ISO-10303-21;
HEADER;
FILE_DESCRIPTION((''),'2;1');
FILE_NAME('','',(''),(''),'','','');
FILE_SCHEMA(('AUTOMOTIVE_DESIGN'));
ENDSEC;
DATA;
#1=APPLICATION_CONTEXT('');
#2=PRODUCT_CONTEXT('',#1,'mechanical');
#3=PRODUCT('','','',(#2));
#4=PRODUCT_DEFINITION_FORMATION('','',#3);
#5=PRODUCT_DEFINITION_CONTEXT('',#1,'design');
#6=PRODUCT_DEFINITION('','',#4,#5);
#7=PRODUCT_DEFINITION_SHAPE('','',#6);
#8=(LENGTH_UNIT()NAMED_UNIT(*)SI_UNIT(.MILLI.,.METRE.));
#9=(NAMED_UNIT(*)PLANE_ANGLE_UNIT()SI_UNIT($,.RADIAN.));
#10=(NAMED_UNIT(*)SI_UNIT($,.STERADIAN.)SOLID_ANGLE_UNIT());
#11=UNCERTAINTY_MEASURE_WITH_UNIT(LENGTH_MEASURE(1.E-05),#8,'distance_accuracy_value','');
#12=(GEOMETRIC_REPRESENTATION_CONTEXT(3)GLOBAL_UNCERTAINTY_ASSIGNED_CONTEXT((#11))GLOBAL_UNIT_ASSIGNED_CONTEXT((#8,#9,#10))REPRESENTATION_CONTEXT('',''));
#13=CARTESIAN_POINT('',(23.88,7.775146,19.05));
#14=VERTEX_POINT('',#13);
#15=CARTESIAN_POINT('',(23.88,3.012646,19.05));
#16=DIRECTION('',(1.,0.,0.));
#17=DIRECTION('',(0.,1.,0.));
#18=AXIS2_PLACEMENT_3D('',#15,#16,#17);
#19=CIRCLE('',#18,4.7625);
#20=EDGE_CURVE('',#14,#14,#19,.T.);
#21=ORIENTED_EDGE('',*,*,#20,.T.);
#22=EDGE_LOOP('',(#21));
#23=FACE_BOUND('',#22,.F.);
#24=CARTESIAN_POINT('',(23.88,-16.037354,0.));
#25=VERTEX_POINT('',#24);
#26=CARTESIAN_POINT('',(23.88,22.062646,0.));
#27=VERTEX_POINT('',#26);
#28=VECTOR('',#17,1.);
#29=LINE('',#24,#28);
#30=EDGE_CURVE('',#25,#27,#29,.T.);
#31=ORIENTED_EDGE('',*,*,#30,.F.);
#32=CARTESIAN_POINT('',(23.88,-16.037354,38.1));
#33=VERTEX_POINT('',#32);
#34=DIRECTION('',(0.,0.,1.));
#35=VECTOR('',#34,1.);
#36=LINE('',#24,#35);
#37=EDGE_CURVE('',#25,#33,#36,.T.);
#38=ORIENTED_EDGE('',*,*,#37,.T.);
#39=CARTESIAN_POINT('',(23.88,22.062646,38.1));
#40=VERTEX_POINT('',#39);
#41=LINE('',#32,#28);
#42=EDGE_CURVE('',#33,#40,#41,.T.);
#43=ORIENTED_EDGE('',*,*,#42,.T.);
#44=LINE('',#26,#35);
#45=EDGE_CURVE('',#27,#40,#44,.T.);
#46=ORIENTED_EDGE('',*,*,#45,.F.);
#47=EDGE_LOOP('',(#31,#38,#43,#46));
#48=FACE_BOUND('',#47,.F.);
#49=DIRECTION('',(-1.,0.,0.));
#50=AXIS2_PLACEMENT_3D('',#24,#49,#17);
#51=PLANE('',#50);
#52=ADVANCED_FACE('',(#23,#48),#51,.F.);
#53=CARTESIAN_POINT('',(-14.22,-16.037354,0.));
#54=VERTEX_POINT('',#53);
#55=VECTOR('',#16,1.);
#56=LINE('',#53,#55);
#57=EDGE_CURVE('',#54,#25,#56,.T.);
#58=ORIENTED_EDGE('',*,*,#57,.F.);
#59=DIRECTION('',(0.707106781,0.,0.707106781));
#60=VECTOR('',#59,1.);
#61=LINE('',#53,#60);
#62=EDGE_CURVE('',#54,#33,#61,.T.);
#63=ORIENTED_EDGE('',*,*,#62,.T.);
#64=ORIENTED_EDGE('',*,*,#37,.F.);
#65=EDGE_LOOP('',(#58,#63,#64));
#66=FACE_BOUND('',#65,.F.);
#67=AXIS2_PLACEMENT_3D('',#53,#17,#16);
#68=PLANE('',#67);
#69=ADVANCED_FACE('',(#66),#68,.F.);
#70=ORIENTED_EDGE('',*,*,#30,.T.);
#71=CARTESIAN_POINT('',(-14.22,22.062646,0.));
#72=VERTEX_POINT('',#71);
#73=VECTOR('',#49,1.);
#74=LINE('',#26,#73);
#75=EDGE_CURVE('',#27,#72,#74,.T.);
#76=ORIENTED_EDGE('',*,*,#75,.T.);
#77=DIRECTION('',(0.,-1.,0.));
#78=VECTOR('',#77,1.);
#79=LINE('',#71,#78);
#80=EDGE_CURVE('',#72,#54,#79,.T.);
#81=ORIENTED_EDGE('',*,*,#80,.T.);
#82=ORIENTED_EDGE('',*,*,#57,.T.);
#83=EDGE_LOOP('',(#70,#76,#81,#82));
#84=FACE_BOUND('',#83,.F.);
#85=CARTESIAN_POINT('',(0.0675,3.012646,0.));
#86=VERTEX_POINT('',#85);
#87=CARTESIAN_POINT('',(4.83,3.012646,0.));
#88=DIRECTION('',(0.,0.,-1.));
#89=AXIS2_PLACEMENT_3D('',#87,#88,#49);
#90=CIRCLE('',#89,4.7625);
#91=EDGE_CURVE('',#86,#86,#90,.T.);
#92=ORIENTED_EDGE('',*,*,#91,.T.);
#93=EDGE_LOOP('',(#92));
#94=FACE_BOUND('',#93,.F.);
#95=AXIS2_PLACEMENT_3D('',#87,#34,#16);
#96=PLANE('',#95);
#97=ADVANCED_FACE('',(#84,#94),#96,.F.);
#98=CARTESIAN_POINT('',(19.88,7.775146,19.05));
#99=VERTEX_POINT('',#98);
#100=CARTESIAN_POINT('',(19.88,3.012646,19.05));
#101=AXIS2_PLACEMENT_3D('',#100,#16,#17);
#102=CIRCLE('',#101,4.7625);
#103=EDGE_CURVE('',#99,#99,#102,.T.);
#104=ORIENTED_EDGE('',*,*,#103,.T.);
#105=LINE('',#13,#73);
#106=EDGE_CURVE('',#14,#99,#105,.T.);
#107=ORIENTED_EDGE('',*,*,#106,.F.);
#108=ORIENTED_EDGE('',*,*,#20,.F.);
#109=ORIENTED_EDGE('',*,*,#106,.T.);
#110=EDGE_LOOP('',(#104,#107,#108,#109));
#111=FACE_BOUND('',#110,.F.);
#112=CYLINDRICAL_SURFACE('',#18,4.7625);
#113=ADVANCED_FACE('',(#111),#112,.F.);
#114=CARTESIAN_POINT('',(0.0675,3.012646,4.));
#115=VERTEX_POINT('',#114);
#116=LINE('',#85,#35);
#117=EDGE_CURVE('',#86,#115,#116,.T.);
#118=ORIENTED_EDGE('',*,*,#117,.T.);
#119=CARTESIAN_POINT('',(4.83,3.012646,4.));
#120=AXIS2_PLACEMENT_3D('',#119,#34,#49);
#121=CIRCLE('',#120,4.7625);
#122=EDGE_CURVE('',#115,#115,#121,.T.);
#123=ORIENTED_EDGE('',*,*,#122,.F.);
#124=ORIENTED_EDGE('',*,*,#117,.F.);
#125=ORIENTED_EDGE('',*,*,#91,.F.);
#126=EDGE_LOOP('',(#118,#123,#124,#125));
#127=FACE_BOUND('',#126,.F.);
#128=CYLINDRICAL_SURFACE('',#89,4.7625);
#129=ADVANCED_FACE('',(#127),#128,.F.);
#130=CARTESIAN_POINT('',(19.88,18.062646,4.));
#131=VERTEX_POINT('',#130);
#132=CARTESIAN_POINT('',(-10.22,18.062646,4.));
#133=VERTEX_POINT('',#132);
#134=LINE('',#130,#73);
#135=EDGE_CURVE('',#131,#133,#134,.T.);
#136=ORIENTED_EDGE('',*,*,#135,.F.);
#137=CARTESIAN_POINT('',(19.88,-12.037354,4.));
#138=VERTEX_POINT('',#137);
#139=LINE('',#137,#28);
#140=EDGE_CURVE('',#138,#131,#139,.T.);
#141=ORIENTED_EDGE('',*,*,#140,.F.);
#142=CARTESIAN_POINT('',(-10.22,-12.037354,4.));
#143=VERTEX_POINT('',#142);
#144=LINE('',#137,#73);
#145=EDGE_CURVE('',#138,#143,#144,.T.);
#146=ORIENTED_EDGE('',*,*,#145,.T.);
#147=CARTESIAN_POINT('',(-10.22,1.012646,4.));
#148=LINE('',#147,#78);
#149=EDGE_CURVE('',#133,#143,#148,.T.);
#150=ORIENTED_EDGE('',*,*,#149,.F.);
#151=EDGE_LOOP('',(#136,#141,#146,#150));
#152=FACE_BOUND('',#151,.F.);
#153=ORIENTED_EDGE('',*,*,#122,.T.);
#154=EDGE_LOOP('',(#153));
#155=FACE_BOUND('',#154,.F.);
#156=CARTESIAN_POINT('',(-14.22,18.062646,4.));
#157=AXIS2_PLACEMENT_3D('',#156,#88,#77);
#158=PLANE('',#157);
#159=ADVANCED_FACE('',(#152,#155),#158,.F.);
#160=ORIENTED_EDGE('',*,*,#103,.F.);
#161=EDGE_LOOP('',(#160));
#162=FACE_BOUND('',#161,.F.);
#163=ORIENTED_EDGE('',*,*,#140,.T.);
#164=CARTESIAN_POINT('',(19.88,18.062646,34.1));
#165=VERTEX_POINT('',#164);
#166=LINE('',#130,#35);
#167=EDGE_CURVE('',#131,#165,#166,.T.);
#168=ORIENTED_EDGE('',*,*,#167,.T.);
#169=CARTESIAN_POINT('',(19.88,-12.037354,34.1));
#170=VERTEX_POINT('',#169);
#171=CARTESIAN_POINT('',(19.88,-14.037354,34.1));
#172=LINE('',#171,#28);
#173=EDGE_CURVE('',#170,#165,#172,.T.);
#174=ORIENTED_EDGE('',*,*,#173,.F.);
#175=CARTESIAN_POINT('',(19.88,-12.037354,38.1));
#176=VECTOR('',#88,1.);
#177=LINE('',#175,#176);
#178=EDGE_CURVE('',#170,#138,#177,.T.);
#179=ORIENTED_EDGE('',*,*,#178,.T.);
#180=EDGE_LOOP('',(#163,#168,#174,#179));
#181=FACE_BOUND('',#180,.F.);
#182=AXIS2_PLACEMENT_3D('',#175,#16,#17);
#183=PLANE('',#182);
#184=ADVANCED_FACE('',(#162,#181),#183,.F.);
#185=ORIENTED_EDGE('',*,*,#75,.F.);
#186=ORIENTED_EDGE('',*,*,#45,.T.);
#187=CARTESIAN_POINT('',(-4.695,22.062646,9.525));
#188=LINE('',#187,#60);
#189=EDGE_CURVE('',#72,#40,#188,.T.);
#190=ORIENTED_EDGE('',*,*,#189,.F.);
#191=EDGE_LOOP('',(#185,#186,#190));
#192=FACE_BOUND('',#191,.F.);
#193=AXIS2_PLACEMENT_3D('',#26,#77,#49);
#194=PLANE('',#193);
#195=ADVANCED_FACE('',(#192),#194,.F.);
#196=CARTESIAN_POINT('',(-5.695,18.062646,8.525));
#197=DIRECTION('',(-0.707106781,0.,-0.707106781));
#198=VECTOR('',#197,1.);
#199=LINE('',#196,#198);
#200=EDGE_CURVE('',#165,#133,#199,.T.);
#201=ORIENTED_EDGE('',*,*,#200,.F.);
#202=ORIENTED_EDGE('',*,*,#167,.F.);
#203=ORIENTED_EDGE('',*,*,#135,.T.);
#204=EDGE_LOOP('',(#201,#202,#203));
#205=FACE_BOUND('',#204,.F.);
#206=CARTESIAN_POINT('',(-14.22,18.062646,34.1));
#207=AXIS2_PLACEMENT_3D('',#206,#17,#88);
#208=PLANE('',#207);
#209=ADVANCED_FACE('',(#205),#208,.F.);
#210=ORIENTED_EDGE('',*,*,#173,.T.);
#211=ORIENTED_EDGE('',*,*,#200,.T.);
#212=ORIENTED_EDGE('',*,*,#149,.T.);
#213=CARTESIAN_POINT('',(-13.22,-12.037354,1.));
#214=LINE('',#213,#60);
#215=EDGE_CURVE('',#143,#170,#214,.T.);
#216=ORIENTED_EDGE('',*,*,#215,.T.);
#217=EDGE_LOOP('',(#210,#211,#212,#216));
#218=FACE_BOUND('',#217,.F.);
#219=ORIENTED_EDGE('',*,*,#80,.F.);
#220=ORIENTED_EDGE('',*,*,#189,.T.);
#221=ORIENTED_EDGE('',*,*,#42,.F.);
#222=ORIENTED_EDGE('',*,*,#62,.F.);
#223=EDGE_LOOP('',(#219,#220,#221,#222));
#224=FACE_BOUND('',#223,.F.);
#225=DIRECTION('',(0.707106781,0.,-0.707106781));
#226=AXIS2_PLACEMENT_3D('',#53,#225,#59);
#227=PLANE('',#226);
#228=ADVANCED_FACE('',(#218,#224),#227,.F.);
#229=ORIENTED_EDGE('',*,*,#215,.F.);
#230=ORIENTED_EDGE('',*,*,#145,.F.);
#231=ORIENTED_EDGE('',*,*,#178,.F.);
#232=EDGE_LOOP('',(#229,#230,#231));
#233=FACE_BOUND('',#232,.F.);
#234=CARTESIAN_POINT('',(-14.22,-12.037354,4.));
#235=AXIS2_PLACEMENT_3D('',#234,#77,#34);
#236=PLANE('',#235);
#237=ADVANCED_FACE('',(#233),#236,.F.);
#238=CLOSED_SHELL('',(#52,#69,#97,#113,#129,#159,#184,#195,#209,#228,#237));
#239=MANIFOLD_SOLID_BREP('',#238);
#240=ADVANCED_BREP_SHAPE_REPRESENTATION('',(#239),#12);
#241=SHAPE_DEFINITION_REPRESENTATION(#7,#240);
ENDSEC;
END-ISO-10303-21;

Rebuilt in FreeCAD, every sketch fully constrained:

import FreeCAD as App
import Part
import Sketcher
Q = App.Units.Quantity


def add_polygon(sketch, points):
    """Adds a closed chain of lines whose ends are joined by coincident constraints."""
    first, n = sketch.GeometryCount, len(points)
    for a, b in zip(points, points[1:] + points[:1]):
        sketch.addGeometry(Part.LineSegment(App.Vector(*a, 0), App.Vector(*b, 0)), False)
    for i in range(n):
        sketch.addConstraint(Sketcher.Constraint("Coincident", first + i, 2, first + (i + 1) % n, 1))

doc = App.newDocument("Part")
body = doc.addObject("PartDesign::Body", "Body")

# Sketch on XY plane
sketch1 = doc.addObject("Sketcher::SketchObject", "Sketch")
body.addObject(sketch1)
sketch1.AttachmentSupport = (doc.XY_Plane, [""])
sketch1.MapMode = "FlatFace"
add_polygon(sketch1, [(23.88, 22.062646), (-14.22, 22.062646), (-14.22, -16.037354), (23.88, -16.037354)])  # lines 0-3
sketch1.addGeometry(Part.Circle(App.Vector(4.83, 3.012646, 0), App.Vector(0, 0, 1), 4.7625), False)  # 4
sketch1.addConstraint([
    Sketcher.Constraint("Horizontal", 0),
    Sketcher.Constraint("Vertical", 1),
    Sketcher.Constraint("Horizontal", 2),
    Sketcher.Constraint("Vertical", 3),
    Sketcher.Constraint("Equal", 2, 1),
    Sketcher.Constraint("Diameter", 4, Q("9.525 mm")),
    Sketcher.Constraint("DistanceX", 0, 2, 0, 1, Q("38.1 mm")),
    Sketcher.Constraint("DistanceX", -1, 1, 4, 3, Q("4.83 mm")),
    Sketcher.Constraint("DistanceX", 0, 2, -1, 1, Q("14.22 mm")),
    Sketcher.Constraint("DistanceY", 4, 3, 0, 2, Q("19.05 mm")),
    Sketcher.Constraint("DistanceY", -1, 1, 4, 3, Q("3.012646 mm")),
])
pad1 = doc.addObject("PartDesign::Pad", "Pad")
body.addObject(pad1)
pad1.Profile = sketch1
pad1.Length = 38.1

# Sketch on YZ plane
sketch2 = doc.addObject("Sketcher::SketchObject", "Sketch001")
body.addObject(sketch2)
sketch2.AttachmentSupport = (doc.YZ_Plane, [""])
sketch2.MapMode = "FlatFace"
sketch2.AttachmentOffset = App.Placement(App.Vector(0, 0, 23.88), App.Rotation())
sketch2.addGeometry(Part.Circle(App.Vector(3.012646, 19.05, 0), App.Vector(0, 0, 1), 4.7625), False)
sketch2.addConstraint([
    Sketcher.Constraint("Diameter", 0, Q("9.525 mm")),
    Sketcher.Constraint("DistanceY", -1, 1, 0, 3, Q("19.05 mm")),
    Sketcher.Constraint("DistanceX", -1, 1, 0, 3, Q("3.012646 mm")),
])
pocket1 = doc.addObject("PartDesign::Pocket", "Pocket")
body.addObject(pocket1)
pocket1.Profile = sketch2
pocket1.Length = 25

# Sketch on XY plane
sketch3 = doc.addObject("Sketcher::SketchObject", "Sketch002")
body.addObject(sketch3)
sketch3.AttachmentSupport = (doc.XY_Plane, [""])
sketch3.MapMode = "FlatFace"
sketch3.AttachmentOffset = App.Placement(App.Vector(0, 0, 38.1), App.Rotation())
add_polygon(sketch3, [(19.88, 18.062646), (-10.22, 18.062646), (-10.22, -12.037354), (19.88, -12.037354)])  # lines 0-3
sketch3.addGeometry(Part.Circle(App.Vector(4.83, 3.012646, 0), App.Vector(0, 0, 1), 4.7625), False)  # 4
sketch3.addConstraint([
    Sketcher.Constraint("Horizontal", 0),
    Sketcher.Constraint("Vertical", 1),
    Sketcher.Constraint("Horizontal", 2),
    Sketcher.Constraint("Vertical", 3),
    Sketcher.Constraint("Equal", 2, 1),
    Sketcher.Constraint("Diameter", 4, Q("9.525 mm")),
    Sketcher.Constraint("DistanceX", 0, 2, 0, 1, Q("30.1 mm")),
    Sketcher.Constraint("DistanceX", -1, 1, 4, 3, Q("4.83 mm")),
    Sketcher.Constraint("DistanceX", 0, 2, -1, 1, Q("10.22 mm")),
    Sketcher.Constraint("DistanceY", 4, 3, 0, 2, Q("15.05 mm")),
    Sketcher.Constraint("DistanceY", -1, 1, 4, 3, Q("3.012646 mm")),
])
pocket2 = doc.addObject("PartDesign::Pocket", "Pocket001")
body.addObject(pocket2)
pocket2.Profile = sketch3
pocket2.Length = 34.1

# Sketch on YZ plane
sketch4 = doc.addObject("Sketcher::SketchObject", "Sketch003")
body.addObject(sketch4)
sketch4.AttachmentSupport = (doc.YZ_Plane, [""])
sketch4.MapMode = "FlatFace"
sketch4.AttachmentOffset = App.Placement(App.Vector(0, 0, -14.22), App.Rotation())
add_polygon(sketch4, [(-12.037354, 34.1), (18.062646, 34.1), (18.062646, 4), (-12.037354, 4)])  # lines 0-3
sketch4.addConstraint([
    Sketcher.Constraint("Horizontal", 0),
    Sketcher.Constraint("Vertical", 1),
    Sketcher.Constraint("Horizontal", 2),
    Sketcher.Constraint("Vertical", 3),
    Sketcher.Constraint("Equal", 2, 1),
    Sketcher.Constraint("DistanceX", 0, 1, 0, 2, Q("30.1 mm")),
    Sketcher.Constraint("DistanceY", -1, 1, 1, 2, Q("4 mm")),
    Sketcher.Constraint("DistanceX", -1, 1, 0, 2, Q("18.062646 mm")),
])
pocket3 = doc.addObject("PartDesign::Pocket", "Pocket002")
body.addObject(pocket3)
pocket3.Profile = sketch4
pocket3.Length = 34.1
pocket3.Reversed = True

# Sketch on XZ plane
sketch5 = doc.addObject("Sketcher::SketchObject", "Sketch004")
body.addObject(sketch5)
sketch5.AttachmentSupport = (doc.XZ_Plane, [""])
sketch5.MapMode = "FlatFace"
sketch5.AttachmentOffset = App.Placement(App.Vector(0, 0, 16.037354), App.Rotation())
add_polygon(sketch5, [(-14.22, 0), (23.88, 38.1), (-14.22, 38.1)])  # lines 0-2
sketch5.addConstraint([
    Sketcher.Constraint("Horizontal", 1),
    Sketcher.Constraint("Vertical", 2),
    Sketcher.Constraint("PointOnObject", 2, 2, -1),
    Sketcher.Constraint("Equal", 1, 2),
    Sketcher.Constraint("DistanceX", 1, 2, 1, 1, Q("38.1 mm")),
    Sketcher.Constraint("DistanceX", -1, 1, 0, 2, Q("23.88 mm")),
])
pocket4 = doc.addObject("PartDesign::Pocket", "Pocket003")
body.addObject(pocket4)
pocket4.Profile = sketch5
pocket4.Length = 50

doc.recompute()
